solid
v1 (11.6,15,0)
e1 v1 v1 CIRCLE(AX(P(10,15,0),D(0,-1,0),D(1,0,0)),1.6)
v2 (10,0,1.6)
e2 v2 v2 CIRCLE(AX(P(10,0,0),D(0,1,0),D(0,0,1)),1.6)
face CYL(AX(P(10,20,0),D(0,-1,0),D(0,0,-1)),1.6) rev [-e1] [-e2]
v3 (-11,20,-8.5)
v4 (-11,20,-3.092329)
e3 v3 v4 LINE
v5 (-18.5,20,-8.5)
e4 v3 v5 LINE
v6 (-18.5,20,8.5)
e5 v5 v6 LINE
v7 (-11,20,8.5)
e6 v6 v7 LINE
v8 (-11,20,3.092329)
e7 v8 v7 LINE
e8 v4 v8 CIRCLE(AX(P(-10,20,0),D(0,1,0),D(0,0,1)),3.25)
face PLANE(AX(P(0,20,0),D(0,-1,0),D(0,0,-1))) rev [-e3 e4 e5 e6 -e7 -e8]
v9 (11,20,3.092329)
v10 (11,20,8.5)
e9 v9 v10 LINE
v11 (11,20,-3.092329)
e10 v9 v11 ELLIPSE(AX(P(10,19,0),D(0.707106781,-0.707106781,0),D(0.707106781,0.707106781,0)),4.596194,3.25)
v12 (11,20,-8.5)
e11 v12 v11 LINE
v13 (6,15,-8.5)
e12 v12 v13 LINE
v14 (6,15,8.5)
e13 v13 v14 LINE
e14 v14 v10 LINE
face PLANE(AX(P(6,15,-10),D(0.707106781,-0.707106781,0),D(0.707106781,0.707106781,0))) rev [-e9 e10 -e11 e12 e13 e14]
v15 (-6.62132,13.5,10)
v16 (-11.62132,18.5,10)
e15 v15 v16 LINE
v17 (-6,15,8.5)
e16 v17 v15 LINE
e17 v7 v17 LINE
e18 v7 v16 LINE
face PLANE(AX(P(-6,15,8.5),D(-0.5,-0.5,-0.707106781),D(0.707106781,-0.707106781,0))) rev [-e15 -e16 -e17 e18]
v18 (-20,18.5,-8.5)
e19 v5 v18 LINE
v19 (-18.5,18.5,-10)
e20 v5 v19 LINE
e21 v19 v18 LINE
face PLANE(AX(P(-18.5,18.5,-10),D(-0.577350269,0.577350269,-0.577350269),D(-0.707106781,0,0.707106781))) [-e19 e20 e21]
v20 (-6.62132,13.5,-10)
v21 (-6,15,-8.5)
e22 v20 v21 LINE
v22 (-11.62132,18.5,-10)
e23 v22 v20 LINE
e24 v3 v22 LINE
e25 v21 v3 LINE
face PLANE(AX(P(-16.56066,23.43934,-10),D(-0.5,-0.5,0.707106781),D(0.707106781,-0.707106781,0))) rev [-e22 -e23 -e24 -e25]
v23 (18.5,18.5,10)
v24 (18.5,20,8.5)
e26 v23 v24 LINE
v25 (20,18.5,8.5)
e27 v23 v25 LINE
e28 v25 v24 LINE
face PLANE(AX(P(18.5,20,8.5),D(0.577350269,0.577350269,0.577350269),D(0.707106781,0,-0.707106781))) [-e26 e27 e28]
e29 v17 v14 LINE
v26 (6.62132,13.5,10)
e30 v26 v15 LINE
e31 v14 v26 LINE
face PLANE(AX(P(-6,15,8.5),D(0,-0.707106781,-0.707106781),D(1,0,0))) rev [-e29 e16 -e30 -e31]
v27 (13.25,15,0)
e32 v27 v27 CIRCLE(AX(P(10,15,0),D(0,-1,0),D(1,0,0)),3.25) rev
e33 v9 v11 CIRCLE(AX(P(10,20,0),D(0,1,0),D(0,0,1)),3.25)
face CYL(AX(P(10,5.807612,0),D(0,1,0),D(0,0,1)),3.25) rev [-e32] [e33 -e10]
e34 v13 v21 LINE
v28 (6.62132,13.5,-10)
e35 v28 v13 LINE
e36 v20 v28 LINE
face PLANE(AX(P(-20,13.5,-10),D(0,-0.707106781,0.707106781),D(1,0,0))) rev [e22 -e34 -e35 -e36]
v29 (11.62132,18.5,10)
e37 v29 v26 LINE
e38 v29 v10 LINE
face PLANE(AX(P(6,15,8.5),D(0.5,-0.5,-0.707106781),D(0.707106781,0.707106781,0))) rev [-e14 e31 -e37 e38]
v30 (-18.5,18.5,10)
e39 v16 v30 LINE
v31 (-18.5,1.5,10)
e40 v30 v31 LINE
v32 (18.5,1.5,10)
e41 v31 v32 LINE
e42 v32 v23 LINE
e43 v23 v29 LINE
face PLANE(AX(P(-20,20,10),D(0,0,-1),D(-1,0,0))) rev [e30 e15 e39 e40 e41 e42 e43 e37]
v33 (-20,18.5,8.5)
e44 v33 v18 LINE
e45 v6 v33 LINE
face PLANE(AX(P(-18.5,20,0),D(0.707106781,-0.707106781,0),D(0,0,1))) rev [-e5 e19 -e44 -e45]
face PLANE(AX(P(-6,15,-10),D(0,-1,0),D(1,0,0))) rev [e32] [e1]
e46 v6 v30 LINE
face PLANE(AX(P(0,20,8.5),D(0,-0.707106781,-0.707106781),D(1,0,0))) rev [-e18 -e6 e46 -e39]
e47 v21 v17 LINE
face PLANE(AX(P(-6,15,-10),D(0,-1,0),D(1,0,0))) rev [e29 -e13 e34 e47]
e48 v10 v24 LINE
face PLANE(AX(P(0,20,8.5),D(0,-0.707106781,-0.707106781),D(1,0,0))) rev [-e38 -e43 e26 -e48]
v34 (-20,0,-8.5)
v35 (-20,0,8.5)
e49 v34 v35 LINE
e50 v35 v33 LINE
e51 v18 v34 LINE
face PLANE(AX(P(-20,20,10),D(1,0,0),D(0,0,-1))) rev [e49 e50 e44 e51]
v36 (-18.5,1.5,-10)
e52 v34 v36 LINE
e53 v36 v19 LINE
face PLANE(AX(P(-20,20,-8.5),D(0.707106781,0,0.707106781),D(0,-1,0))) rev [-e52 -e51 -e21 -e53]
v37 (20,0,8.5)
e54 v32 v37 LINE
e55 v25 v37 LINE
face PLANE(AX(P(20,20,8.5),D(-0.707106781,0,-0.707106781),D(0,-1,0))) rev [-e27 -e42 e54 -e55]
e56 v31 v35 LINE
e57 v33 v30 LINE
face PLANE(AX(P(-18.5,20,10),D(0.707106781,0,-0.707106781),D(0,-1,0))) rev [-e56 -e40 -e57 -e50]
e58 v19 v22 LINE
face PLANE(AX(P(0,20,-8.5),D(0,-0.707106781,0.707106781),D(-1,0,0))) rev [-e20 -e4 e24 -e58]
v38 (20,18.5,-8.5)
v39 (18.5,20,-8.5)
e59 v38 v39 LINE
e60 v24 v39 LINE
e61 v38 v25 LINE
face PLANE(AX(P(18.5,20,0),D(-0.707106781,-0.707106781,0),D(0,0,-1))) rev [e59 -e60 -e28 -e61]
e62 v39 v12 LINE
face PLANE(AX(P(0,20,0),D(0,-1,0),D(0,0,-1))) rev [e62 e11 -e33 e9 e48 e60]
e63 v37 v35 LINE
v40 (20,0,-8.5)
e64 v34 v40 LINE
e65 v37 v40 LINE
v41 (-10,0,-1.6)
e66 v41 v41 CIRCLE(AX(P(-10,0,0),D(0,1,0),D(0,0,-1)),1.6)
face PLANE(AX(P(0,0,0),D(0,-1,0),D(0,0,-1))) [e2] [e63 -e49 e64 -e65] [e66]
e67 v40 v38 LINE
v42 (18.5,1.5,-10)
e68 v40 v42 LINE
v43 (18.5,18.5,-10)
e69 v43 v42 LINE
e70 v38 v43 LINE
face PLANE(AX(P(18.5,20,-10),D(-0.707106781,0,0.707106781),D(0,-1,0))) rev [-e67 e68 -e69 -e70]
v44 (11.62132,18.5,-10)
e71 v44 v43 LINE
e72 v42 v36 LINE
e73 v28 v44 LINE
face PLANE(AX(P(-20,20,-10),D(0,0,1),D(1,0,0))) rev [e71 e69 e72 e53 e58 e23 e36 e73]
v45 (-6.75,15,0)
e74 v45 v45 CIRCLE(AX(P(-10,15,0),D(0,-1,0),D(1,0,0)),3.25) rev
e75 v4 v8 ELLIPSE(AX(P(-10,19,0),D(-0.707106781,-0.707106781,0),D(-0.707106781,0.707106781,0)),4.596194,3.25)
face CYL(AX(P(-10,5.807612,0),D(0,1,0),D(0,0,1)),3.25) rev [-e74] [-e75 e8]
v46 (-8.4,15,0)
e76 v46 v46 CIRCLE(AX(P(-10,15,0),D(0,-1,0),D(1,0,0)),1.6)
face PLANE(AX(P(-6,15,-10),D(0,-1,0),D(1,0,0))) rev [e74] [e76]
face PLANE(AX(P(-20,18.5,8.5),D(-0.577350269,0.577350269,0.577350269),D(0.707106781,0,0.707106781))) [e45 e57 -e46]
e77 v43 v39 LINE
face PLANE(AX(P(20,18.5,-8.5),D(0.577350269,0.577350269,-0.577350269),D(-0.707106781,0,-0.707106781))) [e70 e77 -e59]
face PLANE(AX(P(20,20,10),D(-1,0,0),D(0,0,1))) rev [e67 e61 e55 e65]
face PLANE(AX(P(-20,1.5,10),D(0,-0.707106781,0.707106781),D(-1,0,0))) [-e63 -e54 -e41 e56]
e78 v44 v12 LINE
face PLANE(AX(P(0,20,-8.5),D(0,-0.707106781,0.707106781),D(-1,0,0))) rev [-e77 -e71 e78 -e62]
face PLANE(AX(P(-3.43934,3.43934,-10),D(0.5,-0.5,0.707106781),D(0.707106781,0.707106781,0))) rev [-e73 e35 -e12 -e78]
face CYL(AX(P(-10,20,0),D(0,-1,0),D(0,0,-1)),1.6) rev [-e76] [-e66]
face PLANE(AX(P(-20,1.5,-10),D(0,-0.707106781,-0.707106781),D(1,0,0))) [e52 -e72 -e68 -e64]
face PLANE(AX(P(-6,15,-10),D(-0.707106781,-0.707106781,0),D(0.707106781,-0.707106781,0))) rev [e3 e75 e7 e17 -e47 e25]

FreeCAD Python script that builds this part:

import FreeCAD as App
import Part
import Sketcher
from FreeCAD import Vector


def edges_at(feature, points):
    """Names of the edges that pass closest to the given points."""
    edges = feature.Shape.Edges
    near = lambda p: min(range(len(edges)), key=lambda i: edges[i].distToShape(Part.Vertex(*p))[0])
    return sorted({f"Edge{near(p) + 1}" for p in points})

doc = App.newDocument("Part")
body = doc.addObject("PartDesign::Body", "Body")

sketch1 = doc.addObject("Sketcher::SketchObject", "Sketch")
body.addObject(sketch1)
sketch1.AttachmentSupport = (doc.XZ_Plane, [""])
sketch1.MapMode = "FlatFace"
sketch1.addGeometry([
    Part.LineSegment(Vector(-20, -10, 0), Vector(-20, 10, 0)),
    Part.LineSegment(Vector(-20, 10, 0), Vector(20, 10, 0)),
    Part.LineSegment(Vector(20, 10, 0), Vector(20, -10, 0)),
    Part.LineSegment(Vector(20, -10, 0), Vector(-20, -10, 0)),
    Part.Circle(Vector(-10, 0, 0), Vector(0, 0, 1), 1.6),
    Part.Circle(Vector(10, 0, 0), Vector(0, 0, 1), 1.6),
], False)
sketch1.addConstraint([
    Sketcher.Constraint("Coincident", 0, 2, 1, 1),
    Sketcher.Constraint("Coincident", 1, 2, 2, 1),
    Sketcher.Constraint("Coincident", 2, 2, 3, 1),
    Sketcher.Constraint("Coincident", 3, 2, 0, 1),
    Sketcher.Constraint("Vertical", 0),
    Sketcher.Constraint("Horizontal", 1),
    Sketcher.Constraint("Vertical", 2),
    Sketcher.Constraint("Horizontal", 3),
    Sketcher.Constraint("Equal", 4, 5),
    Sketcher.Constraint("Symmetric", 4, 3, 5, 3, -1, 1),
    Sketcher.Constraint("Symmetric", 0, 2, 2, 2, -1, 1),
    Sketcher.Constraint("PointOnObject", 4, 3, -1),
    Sketcher.Constraint("Diameter", 4, 3.2),
    Sketcher.Constraint("DistanceX", 1, 1, 1, 2, 40.0),
    Sketcher.Constraint("DistanceY", 0, 1, 0, 2, 20.0),
    Sketcher.Constraint("DistanceX", 4, 3, -1, 1, 10.0),
])
pad1 = doc.addObject("PartDesign::Pad", "Pad")
body.addObject(pad1)
pad1.Profile = sketch1
pad1.Length = 20
pad1.Reversed = True

sketch2 = doc.addObject("Sketcher::SketchObject", "Sketch001")
body.addObject(sketch2)
sketch2.AttachmentSupport = (doc.XY_Plane, [""])
sketch2.MapMode = "FlatFace"
sketch2.AttachmentOffset = App.Placement(Vector(0, 0, 10), App.Rotation())
sketch2.addGeometry([
    Part.LineSegment(Vector(-6, 15, 0), Vector(6, 15, 0)),
    Part.LineSegment(Vector(6, 15, 0), Vector(11, 20, 0)),
    Part.LineSegment(Vector(11, 20, 0), Vector(-11, 20, 0)),
    Part.LineSegment(Vector(-11, 20, 0), Vector(-6, 15, 0)),
], False)
sketch2.addConstraint([
    Sketcher.Constraint("Coincident", 0, 2, 1, 1),
    Sketcher.Constraint("Coincident", 1, 2, 2, 1),
    Sketcher.Constraint("Coincident", 2, 2, 3, 1),
    Sketcher.Constraint("Coincident", 3, 2, 0, 1),
    Sketcher.Constraint("Horizontal", 0),
    Sketcher.Constraint("Horizontal", 2),
    Sketcher.Constraint("Perpendicular", 1, 3),
    Sketcher.Constraint("Equal", 1, 3),
    Sketcher.Constraint("DistanceX", 0, 1, 0, 2, 12.0),
    Sketcher.Constraint("DistanceX", 2, 2, 2, 1, 22.0),
    Sketcher.Constraint("DistanceX", -1, 1, 0, 2, 6.0),
    Sketcher.Constraint("DistanceY", -1, 1, 0, 2, 15.0),
])
pocket1 = doc.addObject("PartDesign::Pocket", "Pocket")
body.addObject(pocket1)
pocket1.Profile = sketch2
pocket1.Length = 20

sketch3 = doc.addObject("Sketcher::SketchObject", "Sketch002")
body.addObject(sketch3)
sketch3.AttachmentSupport = (doc.XZ_Plane, [""])
sketch3.MapMode = "FlatFace"
sketch3.AttachmentOffset = App.Placement(Vector(0, 0, -20), App.Rotation())
sketch3.addGeometry([
    Part.Circle(Vector(10, 0, 0), Vector(0, 0, 1), 3.2),
    Part.Circle(Vector(-10, 0, 0), Vector(0, 0, 1), 3.2),
], False)
sketch3.addConstraint([
    Sketcher.Constraint("Equal", 0, 1),
    Sketcher.Constraint("Symmetric", 0, 3, 1, 3, -1, 1),
    Sketcher.Constraint("PointOnObject", 0, 3, -1),
    Sketcher.Constraint("Diameter", 0, 6.5),
    Sketcher.Constraint("DistanceX", -1, 1, 0, 3, 10.0),
])
pocket2 = doc.addObject("PartDesign::Pocket", "Pocket001")
body.addObject(pocket2)
pocket2.Profile = sketch3
pocket2.Length = 5
pocket2.Reversed = True
doc.recompute()

chamfer = doc.addObject("PartDesign::Chamfer", "Chamfer")
body.addObject(chamfer)
chamfer.Base = (pocket2, edges_at(pocket2, [
    (-20, 20, 0),
    (-15.5, 20, 10),
    (15.5, 20, 10),
    (-15.5, 20, -10),
    (-8.5, 17.5, -10),
    (8.5, 17.5, -10),
    (0, 15, -10),
    (-8.5, 17.5, 10),
    (0, 15, 10),
    (8.5, 17.5, 10),
    (20, 20, 0),
    (0, 0, 10),
    (0, 0, -10),
    (20, 10, 10),
    (-20, 10, 10),
    (-20, 10, -10),
    (20, 10, -10),
    (15.5, 20, -10),
]))
chamfer.Size = 1.5

doc.recompute()
